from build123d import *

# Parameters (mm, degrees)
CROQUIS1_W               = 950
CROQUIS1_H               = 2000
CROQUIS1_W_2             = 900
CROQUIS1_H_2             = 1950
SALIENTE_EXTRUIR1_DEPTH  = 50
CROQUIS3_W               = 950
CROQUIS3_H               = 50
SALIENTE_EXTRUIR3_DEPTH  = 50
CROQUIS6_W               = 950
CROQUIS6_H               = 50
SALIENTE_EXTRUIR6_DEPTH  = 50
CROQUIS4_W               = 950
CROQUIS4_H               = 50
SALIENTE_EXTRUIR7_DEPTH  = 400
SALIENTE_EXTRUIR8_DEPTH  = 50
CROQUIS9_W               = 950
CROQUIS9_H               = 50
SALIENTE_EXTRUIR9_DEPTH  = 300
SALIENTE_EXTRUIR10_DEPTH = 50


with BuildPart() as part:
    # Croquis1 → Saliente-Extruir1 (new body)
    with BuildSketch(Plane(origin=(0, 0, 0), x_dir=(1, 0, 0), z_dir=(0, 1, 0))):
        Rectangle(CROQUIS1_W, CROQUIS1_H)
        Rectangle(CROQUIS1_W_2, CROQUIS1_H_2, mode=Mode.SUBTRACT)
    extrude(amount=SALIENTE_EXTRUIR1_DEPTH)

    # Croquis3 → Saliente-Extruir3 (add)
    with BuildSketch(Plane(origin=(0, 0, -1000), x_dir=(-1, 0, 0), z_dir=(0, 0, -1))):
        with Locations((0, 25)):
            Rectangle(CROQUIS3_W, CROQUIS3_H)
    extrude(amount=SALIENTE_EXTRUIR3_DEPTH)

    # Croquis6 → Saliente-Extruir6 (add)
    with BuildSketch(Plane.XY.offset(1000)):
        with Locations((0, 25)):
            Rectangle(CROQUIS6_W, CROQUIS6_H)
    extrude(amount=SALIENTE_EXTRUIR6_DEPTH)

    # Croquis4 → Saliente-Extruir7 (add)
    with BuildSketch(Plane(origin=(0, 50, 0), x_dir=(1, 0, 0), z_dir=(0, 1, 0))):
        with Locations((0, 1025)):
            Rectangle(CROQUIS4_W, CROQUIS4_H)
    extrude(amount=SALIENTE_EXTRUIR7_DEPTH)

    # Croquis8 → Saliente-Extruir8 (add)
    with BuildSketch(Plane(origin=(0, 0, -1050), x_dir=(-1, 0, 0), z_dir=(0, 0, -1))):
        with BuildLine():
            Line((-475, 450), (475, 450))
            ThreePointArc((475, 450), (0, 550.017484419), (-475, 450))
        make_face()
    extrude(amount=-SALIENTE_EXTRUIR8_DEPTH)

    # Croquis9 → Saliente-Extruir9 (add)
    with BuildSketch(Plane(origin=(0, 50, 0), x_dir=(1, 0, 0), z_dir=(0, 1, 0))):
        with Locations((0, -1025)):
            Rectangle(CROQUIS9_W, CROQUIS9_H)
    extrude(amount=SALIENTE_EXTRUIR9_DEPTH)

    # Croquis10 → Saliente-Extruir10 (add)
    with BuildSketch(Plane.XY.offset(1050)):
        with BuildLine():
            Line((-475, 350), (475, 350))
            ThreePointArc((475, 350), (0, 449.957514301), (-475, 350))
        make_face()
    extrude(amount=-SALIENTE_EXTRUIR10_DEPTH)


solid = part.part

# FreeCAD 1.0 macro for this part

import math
import FreeCAD as App
import Part
import Sketcher


def add_polygon(sketch, points):
    """Adds a closed chain of lines whose ends are joined by coincident constraints."""
    first, n = sketch.GeometryCount, len(points)
    for a, b in zip(points, points[1:] + points[:1]):
        sketch.addGeometry(Part.LineSegment(App.Vector(*a, 0), App.Vector(*b, 0)), False)
    for i in range(n):
        sketch.addConstraint(Sketcher.Constraint("Coincident", first + i, 2, first + (i + 1) % n, 1))

doc = App.newDocument("Part")
body = doc.addObject("PartDesign::Body", "Body")

# Sketch on XZ plane
sketch1 = body.newObject("Sketcher::SketchObject", "Sketch")
sketch1.AttachmentSupport = (doc.getObject("XZ_Plane"), [""])
sketch1.MapMode = "FlatFace"
add_polygon(sketch1, [(-475, -1000), (-475, 1000), (475, 1000), (475, -1000)])  # lines 0-3
add_polygon(sketch1, [(450, 975), (-450, 975), (-450, -975), (450, -975)])  # lines 4-7
sketch1.addConstraint([
    Sketcher.Constraint("Vertical", 0),
    Sketcher.Constraint("Horizontal", 1),
    Sketcher.Constraint("Vertical", 2),
    Sketcher.Constraint("Horizontal", 3),
    Sketcher.Constraint("Horizontal", 4),
    Sketcher.Constraint("Vertical", 5),
    Sketcher.Constraint("Horizontal", 6),
    Sketcher.Constraint("Vertical", 7),
    Sketcher.Constraint("Symmetric", 0, 2, 2, 2, -1, 1),
    Sketcher.Constraint("Symmetric", 4, 2, 6, 2, -1, 1),
    Sketcher.Constraint("DistanceX", 1, 1, 1, 2, 950.0),
    Sketcher.Constraint("DistanceX", 4, 2, 4, 1, 900.0),
    Sketcher.Constraint("DistanceY", 0, 1, 0, 2, 2000.0),
    Sketcher.Constraint("DistanceY", 5, 2, 5, 1, 1950.0),
])
pad1 = body.newObject("PartDesign::Pad", "Pad")
pad1.Profile = sketch1
pad1.Length = 50
pad1.Reversed = True

# Sketch on XY plane
sketch2 = body.newObject("Sketcher::SketchObject", "Sketch001")
sketch2.AttachmentSupport = (doc.getObject("XY_Plane"), [""])
sketch2.MapMode = "FlatFace"
sketch2.AttachmentOffset = App.Placement(App.Vector(0, 0, -1000), App.Rotation())
add_polygon(sketch2, [(475, 50), (475, 0), (-475, 0), (-475, 50)])  # lines 0-3
sketch2.addConstraint([
    Sketcher.Constraint("Vertical", 0),
    Sketcher.Constraint("Horizontal", 1),
    Sketcher.Constraint("Vertical", 2),
    Sketcher.Constraint("Horizontal", 3),
    Sketcher.Constraint("Symmetric", 0, 2, 1, 2, -1, 1),
    Sketcher.Constraint("DistanceX", 1, 2, 1, 1, 950.0),
    Sketcher.Constraint("DistanceY", 0, 2, 0, 1, 50.0),
])
pad2 = body.newObject("PartDesign::Pad", "Pad001")
pad2.Profile = sketch2
pad2.Length = 50
pad2.Reversed = True

# Sketch on XY plane
sketch3 = body.newObject("Sketcher::SketchObject", "Sketch002")
sketch3.AttachmentSupport = (doc.getObject("XY_Plane"), [""])
sketch3.MapMode = "FlatFace"
sketch3.AttachmentOffset = App.Placement(App.Vector(0, 0, 1000), App.Rotation())
add_polygon(sketch3, [(-475, 50), (-475, 0), (475, 0), (475, 50)])  # lines 0-3
sketch3.addConstraint([
    Sketcher.Constraint("Vertical", 0),
    Sketcher.Constraint("Horizontal", 1),
    Sketcher.Constraint("Vertical", 2),
    Sketcher.Constraint("Horizontal", 3),
    Sketcher.Constraint("Symmetric", 0, 2, 1, 2, -1, 1),
    Sketcher.Constraint("DistanceX", 1, 1, 1, 2, 950.0),
    Sketcher.Constraint("DistanceY", 0, 2, 0, 1, 50.0),
])
pad3 = body.newObject("PartDesign::Pad", "Pad002")
pad3.Profile = sketch3
pad3.Length = 50

# Sketch on XZ plane
sketch4 = body.newObject("Sketcher::SketchObject", "Sketch003")
sketch4.AttachmentSupport = (doc.getObject("XZ_Plane"), [""])
sketch4.MapMode = "FlatFace"
sketch4.AttachmentOffset = App.Placement(App.Vector(0, 0, -50), App.Rotation())
add_polygon(sketch4, [(-475, -1050), (-475, -1000), (475, -1000), (475, -1050)])  # lines 0-3
sketch4.addConstraint([
    Sketcher.Constraint("Vertical", 0),
    Sketcher.Constraint("Horizontal", 1),
    Sketcher.Constraint("Vertical", 2),
    Sketcher.Constraint("Horizontal", 3),
    Sketcher.Constraint("DistanceX", 1, 1, 1, 2, 950.0),
    Sketcher.Constraint("DistanceY", 0, 1, 0, 2, 50.0),
    Sketcher.Constraint("DistanceX", 0, 2, -1, 1, 475.0),
    Sketcher.Constraint("DistanceY", 0, 2, -1, 1, 1000.0),
])
pad4 = body.newObject("PartDesign::Pad", "Pad003")
pad4.Profile = sketch4
pad4.Length = 400
pad4.Reversed = True

# Sketch on XY plane
sketch5 = body.newObject("Sketcher::SketchObject", "Sketch004")
sketch5.AttachmentSupport = (doc.getObject("XY_Plane"), [""])
sketch5.MapMode = "FlatFace"
sketch5.AttachmentOffset = App.Placement(App.Vector(0, 0, -1050), App.Rotation())
sketch5.addGeometry([
    Part.LineSegment(App.Vector(475, 450, 0), App.Vector(-475, 450, 0)),
    Part.ArcOfCircle(Part.Circle(App.Vector(0, -628, 0), App.Vector(0, 0, 1), 1178), math.radians(66), math.radians(114)),
], False)
sketch5.addConstraint([
    Sketcher.Constraint("Coincident", 0, 1, 1, 1),
    Sketcher.Constraint("Coincident", 1, 2, 0, 2),
    Sketcher.Constraint("Horizontal", 0),
    Sketcher.Constraint("PointOnObject", 1, 3, -2),
    Sketcher.Constraint("DistanceX", 0, 2, 0, 1, 950.0),
    Sketcher.Constraint("DistanceY", -1, 1, 0, 1, 450.0),
    Sketcher.Constraint("Radius", 1, 1177.936531),
])
pad5 = body.newObject("PartDesign::Pad", "Pad004")
pad5.Profile = sketch5
pad5.Length = 50

# Sketch on XZ plane
sketch6 = body.newObject("Sketcher::SketchObject", "Sketch005")
sketch6.AttachmentSupport = (doc.getObject("XZ_Plane"), [""])
sketch6.MapMode = "FlatFace"
sketch6.AttachmentOffset = App.Placement(App.Vector(0, 0, -50), App.Rotation())
add_polygon(sketch6, [(-475, 1000), (-475, 1050), (475, 1050), (475, 1000)])  # lines 0-3
sketch6.addConstraint([
    Sketcher.Constraint("Vertical", 0),
    Sketcher.Constraint("Horizontal", 1),
    Sketcher.Constraint("Vertical", 2),
    Sketcher.Constraint("Horizontal", 3),
    Sketcher.Constraint("DistanceX", 1, 1, 1, 2, 950.0),
    Sketcher.Constraint("DistanceY", 0, 1, 0, 2, 50.0),
    Sketcher.Constraint("DistanceX", 0, 2, -1, 1, 475.0),
    Sketcher.Constraint("DistanceY", -1, 1, 0, 2, 1050.0),
])
pad6 = body.newObject("PartDesign::Pad", "Pad005")
pad6.Profile = sketch6
pad6.Length = 300
pad6.Reversed = True

# Sketch on XY plane
sketch7 = body.newObject("Sketcher::SketchObject", "Sketch006")
sketch7.AttachmentSupport = (doc.getObject("XY_Plane"), [""])
sketch7.MapMode = "FlatFace"
sketch7.AttachmentOffset = App.Placement(App.Vector(0, 0, 1050), App.Rotation())
sketch7.addGeometry([
    Part.LineSegment(App.Vector(-475, 350, 0), App.Vector(475, 350, 0)),
    Part.ArcOfCircle(Part.Circle(App.Vector(0, -729, 0), App.Vector(0, 0, 1), 1179), math.radians(66), math.radians(114)),
], False)
sketch7.addConstraint([
    Sketcher.Constraint("Coincident", 0, 1, 1, 2),
    Sketcher.Constraint("Coincident", 1, 1, 0, 2),
    Sketcher.Constraint("Horizontal", 0),
    Sketcher.Constraint("PointOnObject", 1, 3, -2),
    Sketcher.Constraint("DistanceX", 0, 1, 0, 2, 950.0),
    Sketcher.Constraint("DistanceY", -1, 1, 0, 1, 350.0),
    Sketcher.Constraint("Radius", 1, 1178.583253),
])
pad7 = body.newObject("PartDesign::Pad", "Pad006")
pad7.Profile = sketch7
pad7.Length = 50
pad7.Reversed = True

doc.recompute()
